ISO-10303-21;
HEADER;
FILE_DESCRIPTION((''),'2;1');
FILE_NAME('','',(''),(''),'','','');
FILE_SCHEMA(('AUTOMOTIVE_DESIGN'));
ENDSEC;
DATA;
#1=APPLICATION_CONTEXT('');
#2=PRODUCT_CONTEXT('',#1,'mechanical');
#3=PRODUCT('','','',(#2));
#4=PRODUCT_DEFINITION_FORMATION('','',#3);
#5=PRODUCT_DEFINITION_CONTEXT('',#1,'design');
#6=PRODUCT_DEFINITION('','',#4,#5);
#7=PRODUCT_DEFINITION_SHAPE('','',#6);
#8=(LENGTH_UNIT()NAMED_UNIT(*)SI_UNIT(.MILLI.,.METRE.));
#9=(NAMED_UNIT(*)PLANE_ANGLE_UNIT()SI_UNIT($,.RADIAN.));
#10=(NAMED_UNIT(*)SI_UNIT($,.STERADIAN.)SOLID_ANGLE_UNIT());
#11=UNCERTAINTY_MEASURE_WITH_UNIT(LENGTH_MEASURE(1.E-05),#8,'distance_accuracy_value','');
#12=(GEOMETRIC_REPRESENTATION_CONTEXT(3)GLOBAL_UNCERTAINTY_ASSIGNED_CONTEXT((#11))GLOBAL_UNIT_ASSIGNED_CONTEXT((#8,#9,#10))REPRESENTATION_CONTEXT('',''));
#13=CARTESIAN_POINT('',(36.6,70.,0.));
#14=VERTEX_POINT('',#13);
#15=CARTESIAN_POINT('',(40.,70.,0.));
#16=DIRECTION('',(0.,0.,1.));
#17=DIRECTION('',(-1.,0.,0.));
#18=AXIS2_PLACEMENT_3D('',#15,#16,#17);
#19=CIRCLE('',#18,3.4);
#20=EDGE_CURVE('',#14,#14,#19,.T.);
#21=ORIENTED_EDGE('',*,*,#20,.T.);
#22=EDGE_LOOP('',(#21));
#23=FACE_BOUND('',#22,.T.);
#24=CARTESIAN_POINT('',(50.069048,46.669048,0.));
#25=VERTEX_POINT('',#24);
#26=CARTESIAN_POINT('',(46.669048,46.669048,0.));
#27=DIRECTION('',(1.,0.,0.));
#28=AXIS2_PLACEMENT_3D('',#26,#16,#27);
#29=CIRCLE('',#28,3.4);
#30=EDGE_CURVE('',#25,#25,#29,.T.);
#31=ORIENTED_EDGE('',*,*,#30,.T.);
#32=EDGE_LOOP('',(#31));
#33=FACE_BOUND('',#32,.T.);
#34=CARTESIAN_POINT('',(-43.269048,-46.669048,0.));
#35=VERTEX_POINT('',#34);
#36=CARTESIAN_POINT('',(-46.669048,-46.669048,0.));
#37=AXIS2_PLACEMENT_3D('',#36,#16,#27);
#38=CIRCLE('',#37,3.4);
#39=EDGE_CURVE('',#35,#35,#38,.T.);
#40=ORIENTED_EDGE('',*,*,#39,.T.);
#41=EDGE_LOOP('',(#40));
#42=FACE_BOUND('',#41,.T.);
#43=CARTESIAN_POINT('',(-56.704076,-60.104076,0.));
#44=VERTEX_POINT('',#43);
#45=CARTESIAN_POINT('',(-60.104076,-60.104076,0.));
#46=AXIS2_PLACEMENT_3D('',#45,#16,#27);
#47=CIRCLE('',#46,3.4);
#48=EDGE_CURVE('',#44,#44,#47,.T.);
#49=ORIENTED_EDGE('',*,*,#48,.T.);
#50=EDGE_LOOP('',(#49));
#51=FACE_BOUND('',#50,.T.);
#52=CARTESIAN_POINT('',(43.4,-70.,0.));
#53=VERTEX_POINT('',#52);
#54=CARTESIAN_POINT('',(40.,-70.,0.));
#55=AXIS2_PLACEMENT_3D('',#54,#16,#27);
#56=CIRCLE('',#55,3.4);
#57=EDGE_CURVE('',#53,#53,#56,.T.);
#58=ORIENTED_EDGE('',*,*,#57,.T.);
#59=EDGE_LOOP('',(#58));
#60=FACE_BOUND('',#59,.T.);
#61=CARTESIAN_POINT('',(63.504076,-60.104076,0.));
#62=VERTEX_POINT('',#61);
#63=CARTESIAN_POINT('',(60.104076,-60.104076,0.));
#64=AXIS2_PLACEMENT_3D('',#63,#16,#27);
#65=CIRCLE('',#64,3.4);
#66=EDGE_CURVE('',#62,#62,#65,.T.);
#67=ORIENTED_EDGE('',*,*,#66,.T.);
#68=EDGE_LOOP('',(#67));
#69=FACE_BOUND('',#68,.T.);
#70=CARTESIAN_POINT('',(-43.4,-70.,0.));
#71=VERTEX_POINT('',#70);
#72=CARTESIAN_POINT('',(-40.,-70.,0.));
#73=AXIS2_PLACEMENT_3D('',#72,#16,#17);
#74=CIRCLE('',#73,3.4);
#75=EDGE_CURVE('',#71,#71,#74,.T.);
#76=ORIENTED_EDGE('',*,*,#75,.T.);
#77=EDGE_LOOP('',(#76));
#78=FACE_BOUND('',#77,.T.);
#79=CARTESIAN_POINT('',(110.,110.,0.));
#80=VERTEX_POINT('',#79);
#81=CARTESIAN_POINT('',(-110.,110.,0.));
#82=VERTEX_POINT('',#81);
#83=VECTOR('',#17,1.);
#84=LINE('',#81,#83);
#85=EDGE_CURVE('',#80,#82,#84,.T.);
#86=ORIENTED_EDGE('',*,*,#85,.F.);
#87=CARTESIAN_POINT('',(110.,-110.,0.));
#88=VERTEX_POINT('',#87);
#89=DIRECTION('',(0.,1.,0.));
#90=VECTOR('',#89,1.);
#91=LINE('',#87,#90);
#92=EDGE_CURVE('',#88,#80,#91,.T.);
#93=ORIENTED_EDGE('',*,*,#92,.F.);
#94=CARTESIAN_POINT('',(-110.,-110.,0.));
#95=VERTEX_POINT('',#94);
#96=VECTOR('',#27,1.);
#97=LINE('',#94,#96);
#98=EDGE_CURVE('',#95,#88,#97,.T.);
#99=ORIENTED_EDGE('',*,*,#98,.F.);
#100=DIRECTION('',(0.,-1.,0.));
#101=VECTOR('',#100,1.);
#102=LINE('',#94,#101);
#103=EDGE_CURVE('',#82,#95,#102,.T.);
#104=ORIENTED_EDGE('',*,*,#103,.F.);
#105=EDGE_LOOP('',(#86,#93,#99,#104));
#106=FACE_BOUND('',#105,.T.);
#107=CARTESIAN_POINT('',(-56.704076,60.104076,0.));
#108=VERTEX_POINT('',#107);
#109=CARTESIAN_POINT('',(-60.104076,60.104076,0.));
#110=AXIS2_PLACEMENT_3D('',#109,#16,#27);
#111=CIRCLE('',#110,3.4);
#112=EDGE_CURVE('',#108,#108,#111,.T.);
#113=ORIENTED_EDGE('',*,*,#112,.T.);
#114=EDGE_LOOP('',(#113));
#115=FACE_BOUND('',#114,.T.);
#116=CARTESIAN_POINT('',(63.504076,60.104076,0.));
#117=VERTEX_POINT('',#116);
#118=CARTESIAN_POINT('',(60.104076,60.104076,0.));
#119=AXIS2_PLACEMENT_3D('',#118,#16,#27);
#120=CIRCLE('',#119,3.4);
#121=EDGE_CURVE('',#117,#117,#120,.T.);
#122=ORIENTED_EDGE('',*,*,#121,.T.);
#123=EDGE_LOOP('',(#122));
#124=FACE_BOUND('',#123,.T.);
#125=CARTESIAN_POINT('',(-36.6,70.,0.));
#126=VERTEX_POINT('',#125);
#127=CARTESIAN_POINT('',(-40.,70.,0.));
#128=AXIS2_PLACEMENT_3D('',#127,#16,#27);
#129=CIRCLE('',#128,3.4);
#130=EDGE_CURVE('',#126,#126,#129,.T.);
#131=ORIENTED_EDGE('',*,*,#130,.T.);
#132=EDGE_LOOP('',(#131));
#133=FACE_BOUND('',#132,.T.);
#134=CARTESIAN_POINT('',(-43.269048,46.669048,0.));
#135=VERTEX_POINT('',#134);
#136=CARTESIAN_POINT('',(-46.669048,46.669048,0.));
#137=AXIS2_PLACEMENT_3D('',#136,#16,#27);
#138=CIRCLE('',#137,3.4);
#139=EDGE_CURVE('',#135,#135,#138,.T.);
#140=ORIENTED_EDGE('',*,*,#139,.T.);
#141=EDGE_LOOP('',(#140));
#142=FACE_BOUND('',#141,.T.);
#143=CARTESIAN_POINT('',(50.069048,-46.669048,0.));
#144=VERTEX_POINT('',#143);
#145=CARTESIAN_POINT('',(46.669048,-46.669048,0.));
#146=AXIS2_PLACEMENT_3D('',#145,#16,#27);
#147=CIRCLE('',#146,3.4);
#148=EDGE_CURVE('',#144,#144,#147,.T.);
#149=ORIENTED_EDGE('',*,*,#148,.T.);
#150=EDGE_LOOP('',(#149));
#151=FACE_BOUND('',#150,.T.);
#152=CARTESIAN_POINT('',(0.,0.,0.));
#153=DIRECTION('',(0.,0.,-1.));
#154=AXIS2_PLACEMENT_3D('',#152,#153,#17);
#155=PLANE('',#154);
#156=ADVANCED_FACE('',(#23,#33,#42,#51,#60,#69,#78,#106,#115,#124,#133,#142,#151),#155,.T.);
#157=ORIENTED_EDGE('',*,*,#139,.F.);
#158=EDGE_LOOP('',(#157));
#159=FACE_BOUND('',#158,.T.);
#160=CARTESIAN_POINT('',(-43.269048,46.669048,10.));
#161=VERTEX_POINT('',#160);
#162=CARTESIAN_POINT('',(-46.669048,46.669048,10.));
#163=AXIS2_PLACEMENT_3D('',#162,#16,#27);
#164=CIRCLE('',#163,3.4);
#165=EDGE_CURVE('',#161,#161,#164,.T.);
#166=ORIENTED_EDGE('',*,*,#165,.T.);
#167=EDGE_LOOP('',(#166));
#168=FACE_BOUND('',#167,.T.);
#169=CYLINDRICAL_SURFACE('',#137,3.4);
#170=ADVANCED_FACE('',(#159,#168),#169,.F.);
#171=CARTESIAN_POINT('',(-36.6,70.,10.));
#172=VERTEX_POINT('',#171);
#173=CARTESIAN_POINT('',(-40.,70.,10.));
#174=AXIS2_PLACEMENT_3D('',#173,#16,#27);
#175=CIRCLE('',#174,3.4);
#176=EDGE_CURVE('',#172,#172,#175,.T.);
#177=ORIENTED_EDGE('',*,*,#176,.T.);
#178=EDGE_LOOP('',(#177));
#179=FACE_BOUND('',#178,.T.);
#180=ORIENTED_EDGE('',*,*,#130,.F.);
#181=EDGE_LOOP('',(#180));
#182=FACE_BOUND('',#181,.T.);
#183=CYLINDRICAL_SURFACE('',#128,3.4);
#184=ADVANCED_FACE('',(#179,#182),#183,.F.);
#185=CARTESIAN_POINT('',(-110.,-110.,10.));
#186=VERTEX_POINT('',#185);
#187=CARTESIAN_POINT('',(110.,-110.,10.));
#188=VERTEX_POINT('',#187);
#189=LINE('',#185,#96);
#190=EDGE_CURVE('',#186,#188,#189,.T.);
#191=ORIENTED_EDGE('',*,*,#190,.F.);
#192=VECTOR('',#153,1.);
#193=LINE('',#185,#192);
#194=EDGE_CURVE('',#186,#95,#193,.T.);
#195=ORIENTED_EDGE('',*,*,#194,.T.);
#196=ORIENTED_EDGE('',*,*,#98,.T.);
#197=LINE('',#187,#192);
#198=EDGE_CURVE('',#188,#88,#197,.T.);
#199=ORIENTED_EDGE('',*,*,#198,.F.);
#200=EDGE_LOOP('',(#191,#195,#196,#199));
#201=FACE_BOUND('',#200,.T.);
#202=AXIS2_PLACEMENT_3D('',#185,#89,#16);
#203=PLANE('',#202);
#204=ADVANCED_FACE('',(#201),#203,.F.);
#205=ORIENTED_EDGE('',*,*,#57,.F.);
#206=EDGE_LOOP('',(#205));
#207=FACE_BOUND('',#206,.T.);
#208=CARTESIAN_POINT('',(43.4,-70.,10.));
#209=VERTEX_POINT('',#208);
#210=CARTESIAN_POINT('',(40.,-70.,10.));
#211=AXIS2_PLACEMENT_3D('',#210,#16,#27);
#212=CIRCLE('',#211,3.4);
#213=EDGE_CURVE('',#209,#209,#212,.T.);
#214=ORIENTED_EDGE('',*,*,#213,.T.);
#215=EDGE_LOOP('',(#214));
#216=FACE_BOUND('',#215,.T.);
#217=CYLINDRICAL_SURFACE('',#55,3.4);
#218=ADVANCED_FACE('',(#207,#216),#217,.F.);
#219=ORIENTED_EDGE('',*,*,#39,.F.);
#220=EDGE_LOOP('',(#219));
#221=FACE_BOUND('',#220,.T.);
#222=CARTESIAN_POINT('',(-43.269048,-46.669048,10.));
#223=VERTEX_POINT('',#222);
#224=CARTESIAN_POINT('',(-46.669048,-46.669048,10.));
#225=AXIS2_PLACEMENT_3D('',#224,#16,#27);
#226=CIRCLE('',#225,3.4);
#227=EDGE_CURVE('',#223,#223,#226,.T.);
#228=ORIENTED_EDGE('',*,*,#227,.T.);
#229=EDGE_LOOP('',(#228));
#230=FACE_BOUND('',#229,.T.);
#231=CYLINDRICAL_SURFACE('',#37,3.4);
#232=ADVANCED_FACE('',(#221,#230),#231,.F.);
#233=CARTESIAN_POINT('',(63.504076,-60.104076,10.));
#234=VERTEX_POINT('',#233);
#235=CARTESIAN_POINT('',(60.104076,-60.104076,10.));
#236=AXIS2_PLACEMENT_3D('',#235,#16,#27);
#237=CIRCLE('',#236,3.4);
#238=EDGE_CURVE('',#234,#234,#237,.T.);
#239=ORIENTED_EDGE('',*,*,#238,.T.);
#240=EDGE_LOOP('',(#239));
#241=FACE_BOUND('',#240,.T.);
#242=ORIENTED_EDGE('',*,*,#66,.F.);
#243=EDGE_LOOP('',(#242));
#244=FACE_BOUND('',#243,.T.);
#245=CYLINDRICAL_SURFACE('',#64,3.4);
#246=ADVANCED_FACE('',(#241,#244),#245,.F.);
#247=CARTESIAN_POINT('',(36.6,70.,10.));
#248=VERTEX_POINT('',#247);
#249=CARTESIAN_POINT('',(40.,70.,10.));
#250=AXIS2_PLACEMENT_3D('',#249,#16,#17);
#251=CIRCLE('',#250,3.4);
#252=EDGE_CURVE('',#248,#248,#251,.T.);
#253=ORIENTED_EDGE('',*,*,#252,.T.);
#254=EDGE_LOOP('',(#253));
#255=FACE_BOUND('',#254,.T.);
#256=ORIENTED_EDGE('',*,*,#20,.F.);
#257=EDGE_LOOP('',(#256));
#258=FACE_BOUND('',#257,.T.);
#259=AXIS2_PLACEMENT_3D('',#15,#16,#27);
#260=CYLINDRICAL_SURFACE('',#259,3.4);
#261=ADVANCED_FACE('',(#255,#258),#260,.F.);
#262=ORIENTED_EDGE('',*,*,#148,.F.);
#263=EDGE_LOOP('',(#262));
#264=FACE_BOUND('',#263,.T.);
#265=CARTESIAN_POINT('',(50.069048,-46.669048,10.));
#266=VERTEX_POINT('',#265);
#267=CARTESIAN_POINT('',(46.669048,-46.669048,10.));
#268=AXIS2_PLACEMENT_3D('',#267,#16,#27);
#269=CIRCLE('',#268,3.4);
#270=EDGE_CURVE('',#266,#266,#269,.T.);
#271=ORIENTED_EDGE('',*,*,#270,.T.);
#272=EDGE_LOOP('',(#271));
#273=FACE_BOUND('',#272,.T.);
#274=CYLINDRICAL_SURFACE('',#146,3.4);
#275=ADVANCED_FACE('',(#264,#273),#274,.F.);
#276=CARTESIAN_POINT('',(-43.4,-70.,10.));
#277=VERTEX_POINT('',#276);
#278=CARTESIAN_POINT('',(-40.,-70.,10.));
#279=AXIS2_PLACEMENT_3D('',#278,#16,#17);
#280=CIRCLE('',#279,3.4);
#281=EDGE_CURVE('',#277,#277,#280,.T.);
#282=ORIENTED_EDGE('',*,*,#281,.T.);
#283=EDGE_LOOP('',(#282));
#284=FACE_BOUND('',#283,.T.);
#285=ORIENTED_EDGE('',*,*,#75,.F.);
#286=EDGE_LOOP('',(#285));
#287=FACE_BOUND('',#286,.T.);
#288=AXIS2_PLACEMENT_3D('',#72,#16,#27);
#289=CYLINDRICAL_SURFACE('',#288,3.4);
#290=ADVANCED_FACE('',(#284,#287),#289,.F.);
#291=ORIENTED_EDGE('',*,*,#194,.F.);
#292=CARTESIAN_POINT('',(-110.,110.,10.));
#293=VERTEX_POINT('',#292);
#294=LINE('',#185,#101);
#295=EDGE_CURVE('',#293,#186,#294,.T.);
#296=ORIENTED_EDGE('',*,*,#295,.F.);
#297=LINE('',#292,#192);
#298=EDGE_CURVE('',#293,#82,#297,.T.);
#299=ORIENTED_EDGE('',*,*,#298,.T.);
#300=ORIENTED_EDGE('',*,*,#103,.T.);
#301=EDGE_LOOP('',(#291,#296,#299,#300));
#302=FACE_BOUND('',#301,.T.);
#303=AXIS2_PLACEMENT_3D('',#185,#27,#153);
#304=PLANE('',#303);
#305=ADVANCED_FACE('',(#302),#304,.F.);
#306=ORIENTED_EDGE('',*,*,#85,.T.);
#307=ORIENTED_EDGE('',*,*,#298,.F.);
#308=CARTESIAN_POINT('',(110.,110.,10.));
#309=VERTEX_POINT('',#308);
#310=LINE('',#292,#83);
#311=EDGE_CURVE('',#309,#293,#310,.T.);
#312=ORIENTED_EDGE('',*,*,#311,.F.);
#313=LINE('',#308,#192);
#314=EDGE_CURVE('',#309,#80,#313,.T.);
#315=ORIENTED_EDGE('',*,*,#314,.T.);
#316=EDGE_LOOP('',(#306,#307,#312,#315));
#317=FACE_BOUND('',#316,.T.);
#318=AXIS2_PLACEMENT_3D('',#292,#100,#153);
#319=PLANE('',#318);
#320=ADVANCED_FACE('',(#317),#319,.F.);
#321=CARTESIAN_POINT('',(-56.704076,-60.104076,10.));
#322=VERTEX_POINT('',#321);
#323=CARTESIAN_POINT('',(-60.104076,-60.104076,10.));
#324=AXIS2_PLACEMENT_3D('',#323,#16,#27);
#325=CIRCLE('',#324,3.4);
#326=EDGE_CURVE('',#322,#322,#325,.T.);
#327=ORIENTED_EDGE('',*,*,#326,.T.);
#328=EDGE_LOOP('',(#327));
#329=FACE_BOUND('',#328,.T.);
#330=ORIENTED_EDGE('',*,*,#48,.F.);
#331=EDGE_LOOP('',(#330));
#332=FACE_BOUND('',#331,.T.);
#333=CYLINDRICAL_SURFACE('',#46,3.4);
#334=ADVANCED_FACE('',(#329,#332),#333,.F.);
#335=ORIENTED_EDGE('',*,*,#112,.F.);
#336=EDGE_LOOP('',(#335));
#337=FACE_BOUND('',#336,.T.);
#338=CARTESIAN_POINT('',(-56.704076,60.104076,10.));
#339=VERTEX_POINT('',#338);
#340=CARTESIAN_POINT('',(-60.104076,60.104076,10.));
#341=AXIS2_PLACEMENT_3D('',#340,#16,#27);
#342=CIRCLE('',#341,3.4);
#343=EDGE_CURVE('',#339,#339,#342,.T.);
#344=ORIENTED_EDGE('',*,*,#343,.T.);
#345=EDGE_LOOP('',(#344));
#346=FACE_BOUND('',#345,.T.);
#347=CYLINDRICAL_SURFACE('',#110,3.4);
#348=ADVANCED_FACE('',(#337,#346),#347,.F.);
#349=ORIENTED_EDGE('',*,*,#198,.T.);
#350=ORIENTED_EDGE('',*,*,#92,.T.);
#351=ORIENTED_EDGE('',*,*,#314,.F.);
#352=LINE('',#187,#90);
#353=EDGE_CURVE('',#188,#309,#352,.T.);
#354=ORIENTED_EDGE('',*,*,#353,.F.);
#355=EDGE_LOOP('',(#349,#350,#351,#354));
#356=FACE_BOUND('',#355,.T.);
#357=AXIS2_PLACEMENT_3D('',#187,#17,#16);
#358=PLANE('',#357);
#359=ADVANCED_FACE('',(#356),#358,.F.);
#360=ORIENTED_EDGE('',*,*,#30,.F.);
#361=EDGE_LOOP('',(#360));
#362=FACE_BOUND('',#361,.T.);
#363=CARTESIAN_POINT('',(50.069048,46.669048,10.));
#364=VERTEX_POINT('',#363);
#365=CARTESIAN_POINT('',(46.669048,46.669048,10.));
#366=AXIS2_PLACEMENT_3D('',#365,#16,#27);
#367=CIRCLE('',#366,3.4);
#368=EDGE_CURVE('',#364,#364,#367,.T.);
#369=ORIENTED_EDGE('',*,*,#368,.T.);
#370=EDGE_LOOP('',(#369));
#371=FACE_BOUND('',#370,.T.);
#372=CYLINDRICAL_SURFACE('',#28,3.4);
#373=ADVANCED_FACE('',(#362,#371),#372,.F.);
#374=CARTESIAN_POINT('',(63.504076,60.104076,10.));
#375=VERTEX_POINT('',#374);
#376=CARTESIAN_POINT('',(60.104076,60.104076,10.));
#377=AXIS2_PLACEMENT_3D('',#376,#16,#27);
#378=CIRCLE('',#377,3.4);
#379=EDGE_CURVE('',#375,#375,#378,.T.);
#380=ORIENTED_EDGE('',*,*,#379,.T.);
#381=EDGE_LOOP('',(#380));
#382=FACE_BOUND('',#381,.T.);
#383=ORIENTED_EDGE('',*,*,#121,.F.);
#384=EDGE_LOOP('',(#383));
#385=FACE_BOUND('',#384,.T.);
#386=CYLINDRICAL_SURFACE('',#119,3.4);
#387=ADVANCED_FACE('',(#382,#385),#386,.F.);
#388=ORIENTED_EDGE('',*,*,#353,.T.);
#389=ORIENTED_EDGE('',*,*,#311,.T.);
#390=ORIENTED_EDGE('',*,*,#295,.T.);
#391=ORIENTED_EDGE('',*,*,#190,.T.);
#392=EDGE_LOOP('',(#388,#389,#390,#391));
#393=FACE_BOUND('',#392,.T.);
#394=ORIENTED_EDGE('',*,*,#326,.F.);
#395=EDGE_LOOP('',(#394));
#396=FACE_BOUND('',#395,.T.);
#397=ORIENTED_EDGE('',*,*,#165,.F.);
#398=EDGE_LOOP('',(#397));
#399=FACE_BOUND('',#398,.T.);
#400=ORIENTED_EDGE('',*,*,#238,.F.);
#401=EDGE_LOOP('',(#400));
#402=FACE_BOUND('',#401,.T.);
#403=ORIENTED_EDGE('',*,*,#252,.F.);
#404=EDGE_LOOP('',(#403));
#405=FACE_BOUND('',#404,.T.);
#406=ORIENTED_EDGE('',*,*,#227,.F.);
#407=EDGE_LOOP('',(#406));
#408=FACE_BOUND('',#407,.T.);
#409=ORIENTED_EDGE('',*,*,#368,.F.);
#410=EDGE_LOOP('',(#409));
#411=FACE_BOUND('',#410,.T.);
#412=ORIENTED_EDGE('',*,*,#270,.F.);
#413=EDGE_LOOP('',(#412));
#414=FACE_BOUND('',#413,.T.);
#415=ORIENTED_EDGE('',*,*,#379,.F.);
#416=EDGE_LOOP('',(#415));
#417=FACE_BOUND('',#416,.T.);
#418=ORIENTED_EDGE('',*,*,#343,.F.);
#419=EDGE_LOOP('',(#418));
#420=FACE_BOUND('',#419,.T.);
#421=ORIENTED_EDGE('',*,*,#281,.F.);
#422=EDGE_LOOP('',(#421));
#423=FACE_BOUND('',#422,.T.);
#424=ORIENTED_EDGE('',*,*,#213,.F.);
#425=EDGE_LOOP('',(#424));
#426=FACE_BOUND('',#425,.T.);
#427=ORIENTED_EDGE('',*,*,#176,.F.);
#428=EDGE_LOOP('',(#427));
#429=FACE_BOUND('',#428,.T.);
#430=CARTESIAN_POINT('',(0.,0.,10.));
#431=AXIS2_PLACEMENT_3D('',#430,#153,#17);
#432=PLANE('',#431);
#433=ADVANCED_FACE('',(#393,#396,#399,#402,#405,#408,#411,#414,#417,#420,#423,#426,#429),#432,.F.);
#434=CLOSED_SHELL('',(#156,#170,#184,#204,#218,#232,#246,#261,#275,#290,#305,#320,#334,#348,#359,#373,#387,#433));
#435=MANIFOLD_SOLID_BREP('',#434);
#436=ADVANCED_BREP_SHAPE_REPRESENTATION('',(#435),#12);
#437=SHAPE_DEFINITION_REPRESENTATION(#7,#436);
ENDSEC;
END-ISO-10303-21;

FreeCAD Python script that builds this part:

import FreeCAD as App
import Part
import Sketcher

V = App.Vector


def add_polygon(sketch, points):
    """Adds a closed chain of lines whose ends are joined by coincident constraints."""
    first, n = sketch.GeometryCount, len(points)
    for a, b in zip(points, points[1:] + points[:1]):
        sketch.addGeometry(Part.LineSegment(App.Vector(*a, 0), App.Vector(*b, 0)), False)
    for i in range(n):
        sketch.addConstraint(Sketcher.Constraint("Coincident", first + i, 2, first + (i + 1) % n, 1))

doc = App.newDocument("Part")
body = doc.addObject("PartDesign::Body", "Body")

# Sketch on XY plane
sketch1 = body.newObject("Sketcher::SketchObject", "Sketch")
sketch1.AttachmentSupport = (doc.getObject("XY_Plane"), [""])
sketch1.MapMode = "FlatFace"
add_polygon(sketch1, [(-110, 110), (-110, -110), (110, -110), (110, 110)])  # lines 0-3
sketch1.addConstraint([
    Sketcher.Constraint("Vertical", 0),
    Sketcher.Constraint("Horizontal", 1),
    Sketcher.Constraint("Vertical", 2),
    Sketcher.Constraint("Horizontal", 3),
    Sketcher.Constraint("Symmetric", 0, 2, 2, 2, -1, 1),
    Sketcher.Constraint("Equal", 3, 0),
    Sketcher.Constraint("DistanceX", 1, 1, 1, 2, 220.0),
])
pad1 = body.newObject("PartDesign::Pad", "Pad")
pad1.Profile = sketch1
pad1.Length = 10

# Sketch on XY plane
sketch2 = body.newObject("Sketcher::SketchObject", "Sketch001")
sketch2.AttachmentSupport = (doc.getObject("XY_Plane"), [""])
sketch2.MapMode = "FlatFace"
sketch2.AttachmentOffset = App.Placement(V(0, 0, 10), App.Rotation())
sketch2.addGeometry([
    Part.Circle(V(46.7, 46.7, 0), V(0, 0, 1), 3.4),  # 0
    Part.Circle(V(46.7, -46.7, 0), V(0, 0, 1), 3.4),  # 1
    Part.Circle(V(-46.7, -46.7, 0), V(0, 0, 1), 3.4),  # 2
    Part.Circle(V(-46.7, 46.7, 0), V(0, 0, 1), 3.4),  # 3
    Part.Circle(V(60.1, 60.1, 0), V(0, 0, 1), 3.4),  # 4
    Part.Circle(V(60.1, -60.1, 0), V(0, 0, 1), 3.4),  # 5
    Part.Circle(V(-60.1, -60.1, 0), V(0, 0, 1), 3.4),  # 6
    Part.Circle(V(-60.1, 60.1, 0), V(0, 0, 1), 3.4),  # 7
], False)
sketch2.addConstraint([
    Sketcher.Constraint("Equal", 0, 1),
    Sketcher.Constraint("Equal", 1, 2),
    Sketcher.Constraint("Equal", 2, 3),
    Sketcher.Constraint("Equal", 3, 4),
    Sketcher.Constraint("Equal", 4, 5),
    Sketcher.Constraint("Equal", 5, 6),
    Sketcher.Constraint("Equal", 6, 7),
    Sketcher.Constraint("Symmetric", 0, 3, 2, 3, -1, 1),
    Sketcher.Constraint("Symmetric", 1, 3, 3, 3, -1, 1),
    Sketcher.Constraint("Symmetric", 4, 3, 6, 3, -1, 1),
    Sketcher.Constraint("Symmetric", 5, 3, 7, 3, -1, 1),
    Sketcher.Constraint("Symmetric", 1, 3, 2, 3, -2),
    Sketcher.Constraint("Symmetric", 5, 3, 6, 3, -2),
    Sketcher.Constraint("Diameter", 0, 6.8),
    Sketcher.Constraint("DistanceX", 0, 3, 4, 3, 13.435029),
    Sketcher.Constraint("DistanceY", 0, 3, 4, 3, 13.435029),
    Sketcher.Constraint("DistanceX", -1, 1, 0, 3, 46.669048),
    Sketcher.Constraint("DistanceY", -1, 1, 0, 3, 46.669048),
])
pocket1 = body.newObject("PartDesign::Pocket", "Pocket")
pocket1.Profile = sketch2
pocket1.Type = "ThroughAll"

# Sketch on XY plane
sketch3 = body.newObject("Sketcher::SketchObject", "Sketch002")
sketch3.AttachmentSupport = (doc.getObject("XY_Plane"), [""])
sketch3.MapMode = "FlatFace"
sketch3.AttachmentOffset = App.Placement(V(0, 0, 10), App.Rotation())
sketch3.addGeometry([
    Part.Circle(V(40, -70, 0), V(0, 0, 1), 3.4),
    Part.Circle(V(-40, -70, 0), V(0, 0, 1), 3.4),
    Part.Circle(V(40, 70, 0), V(0, 0, 1), 3.4),
    Part.Circle(V(-40, 70, 0), V(0, 0, 1), 3.4),
], False)
sketch3.addConstraint([
    Sketcher.Constraint("Equal", 0, 1),
    Sketcher.Constraint("Equal", 1, 2),
    Sketcher.Constraint("Equal", 2, 3),
    Sketcher.Constraint("Symmetric", 1, 3, 2, 3, -1, 1),
    Sketcher.Constraint("Symmetric", 0, 3, 3, 3, -1, 1),
    Sketcher.Constraint("Symmetric", 0, 3, 1, 3, -2),
    Sketcher.Constraint("Diameter", 0, 6.8),
    Sketcher.Constraint("DistanceX", -1, 1, 0, 3, 40.0),
    Sketcher.Constraint("DistanceY", 0, 3, -1, 1, 70.0),
])
pocket2 = body.newObject("PartDesign::Pocket", "Pocket001")
pocket2.Profile = sketch3
pocket2.Type = "ThroughAll"

doc.recompute()
